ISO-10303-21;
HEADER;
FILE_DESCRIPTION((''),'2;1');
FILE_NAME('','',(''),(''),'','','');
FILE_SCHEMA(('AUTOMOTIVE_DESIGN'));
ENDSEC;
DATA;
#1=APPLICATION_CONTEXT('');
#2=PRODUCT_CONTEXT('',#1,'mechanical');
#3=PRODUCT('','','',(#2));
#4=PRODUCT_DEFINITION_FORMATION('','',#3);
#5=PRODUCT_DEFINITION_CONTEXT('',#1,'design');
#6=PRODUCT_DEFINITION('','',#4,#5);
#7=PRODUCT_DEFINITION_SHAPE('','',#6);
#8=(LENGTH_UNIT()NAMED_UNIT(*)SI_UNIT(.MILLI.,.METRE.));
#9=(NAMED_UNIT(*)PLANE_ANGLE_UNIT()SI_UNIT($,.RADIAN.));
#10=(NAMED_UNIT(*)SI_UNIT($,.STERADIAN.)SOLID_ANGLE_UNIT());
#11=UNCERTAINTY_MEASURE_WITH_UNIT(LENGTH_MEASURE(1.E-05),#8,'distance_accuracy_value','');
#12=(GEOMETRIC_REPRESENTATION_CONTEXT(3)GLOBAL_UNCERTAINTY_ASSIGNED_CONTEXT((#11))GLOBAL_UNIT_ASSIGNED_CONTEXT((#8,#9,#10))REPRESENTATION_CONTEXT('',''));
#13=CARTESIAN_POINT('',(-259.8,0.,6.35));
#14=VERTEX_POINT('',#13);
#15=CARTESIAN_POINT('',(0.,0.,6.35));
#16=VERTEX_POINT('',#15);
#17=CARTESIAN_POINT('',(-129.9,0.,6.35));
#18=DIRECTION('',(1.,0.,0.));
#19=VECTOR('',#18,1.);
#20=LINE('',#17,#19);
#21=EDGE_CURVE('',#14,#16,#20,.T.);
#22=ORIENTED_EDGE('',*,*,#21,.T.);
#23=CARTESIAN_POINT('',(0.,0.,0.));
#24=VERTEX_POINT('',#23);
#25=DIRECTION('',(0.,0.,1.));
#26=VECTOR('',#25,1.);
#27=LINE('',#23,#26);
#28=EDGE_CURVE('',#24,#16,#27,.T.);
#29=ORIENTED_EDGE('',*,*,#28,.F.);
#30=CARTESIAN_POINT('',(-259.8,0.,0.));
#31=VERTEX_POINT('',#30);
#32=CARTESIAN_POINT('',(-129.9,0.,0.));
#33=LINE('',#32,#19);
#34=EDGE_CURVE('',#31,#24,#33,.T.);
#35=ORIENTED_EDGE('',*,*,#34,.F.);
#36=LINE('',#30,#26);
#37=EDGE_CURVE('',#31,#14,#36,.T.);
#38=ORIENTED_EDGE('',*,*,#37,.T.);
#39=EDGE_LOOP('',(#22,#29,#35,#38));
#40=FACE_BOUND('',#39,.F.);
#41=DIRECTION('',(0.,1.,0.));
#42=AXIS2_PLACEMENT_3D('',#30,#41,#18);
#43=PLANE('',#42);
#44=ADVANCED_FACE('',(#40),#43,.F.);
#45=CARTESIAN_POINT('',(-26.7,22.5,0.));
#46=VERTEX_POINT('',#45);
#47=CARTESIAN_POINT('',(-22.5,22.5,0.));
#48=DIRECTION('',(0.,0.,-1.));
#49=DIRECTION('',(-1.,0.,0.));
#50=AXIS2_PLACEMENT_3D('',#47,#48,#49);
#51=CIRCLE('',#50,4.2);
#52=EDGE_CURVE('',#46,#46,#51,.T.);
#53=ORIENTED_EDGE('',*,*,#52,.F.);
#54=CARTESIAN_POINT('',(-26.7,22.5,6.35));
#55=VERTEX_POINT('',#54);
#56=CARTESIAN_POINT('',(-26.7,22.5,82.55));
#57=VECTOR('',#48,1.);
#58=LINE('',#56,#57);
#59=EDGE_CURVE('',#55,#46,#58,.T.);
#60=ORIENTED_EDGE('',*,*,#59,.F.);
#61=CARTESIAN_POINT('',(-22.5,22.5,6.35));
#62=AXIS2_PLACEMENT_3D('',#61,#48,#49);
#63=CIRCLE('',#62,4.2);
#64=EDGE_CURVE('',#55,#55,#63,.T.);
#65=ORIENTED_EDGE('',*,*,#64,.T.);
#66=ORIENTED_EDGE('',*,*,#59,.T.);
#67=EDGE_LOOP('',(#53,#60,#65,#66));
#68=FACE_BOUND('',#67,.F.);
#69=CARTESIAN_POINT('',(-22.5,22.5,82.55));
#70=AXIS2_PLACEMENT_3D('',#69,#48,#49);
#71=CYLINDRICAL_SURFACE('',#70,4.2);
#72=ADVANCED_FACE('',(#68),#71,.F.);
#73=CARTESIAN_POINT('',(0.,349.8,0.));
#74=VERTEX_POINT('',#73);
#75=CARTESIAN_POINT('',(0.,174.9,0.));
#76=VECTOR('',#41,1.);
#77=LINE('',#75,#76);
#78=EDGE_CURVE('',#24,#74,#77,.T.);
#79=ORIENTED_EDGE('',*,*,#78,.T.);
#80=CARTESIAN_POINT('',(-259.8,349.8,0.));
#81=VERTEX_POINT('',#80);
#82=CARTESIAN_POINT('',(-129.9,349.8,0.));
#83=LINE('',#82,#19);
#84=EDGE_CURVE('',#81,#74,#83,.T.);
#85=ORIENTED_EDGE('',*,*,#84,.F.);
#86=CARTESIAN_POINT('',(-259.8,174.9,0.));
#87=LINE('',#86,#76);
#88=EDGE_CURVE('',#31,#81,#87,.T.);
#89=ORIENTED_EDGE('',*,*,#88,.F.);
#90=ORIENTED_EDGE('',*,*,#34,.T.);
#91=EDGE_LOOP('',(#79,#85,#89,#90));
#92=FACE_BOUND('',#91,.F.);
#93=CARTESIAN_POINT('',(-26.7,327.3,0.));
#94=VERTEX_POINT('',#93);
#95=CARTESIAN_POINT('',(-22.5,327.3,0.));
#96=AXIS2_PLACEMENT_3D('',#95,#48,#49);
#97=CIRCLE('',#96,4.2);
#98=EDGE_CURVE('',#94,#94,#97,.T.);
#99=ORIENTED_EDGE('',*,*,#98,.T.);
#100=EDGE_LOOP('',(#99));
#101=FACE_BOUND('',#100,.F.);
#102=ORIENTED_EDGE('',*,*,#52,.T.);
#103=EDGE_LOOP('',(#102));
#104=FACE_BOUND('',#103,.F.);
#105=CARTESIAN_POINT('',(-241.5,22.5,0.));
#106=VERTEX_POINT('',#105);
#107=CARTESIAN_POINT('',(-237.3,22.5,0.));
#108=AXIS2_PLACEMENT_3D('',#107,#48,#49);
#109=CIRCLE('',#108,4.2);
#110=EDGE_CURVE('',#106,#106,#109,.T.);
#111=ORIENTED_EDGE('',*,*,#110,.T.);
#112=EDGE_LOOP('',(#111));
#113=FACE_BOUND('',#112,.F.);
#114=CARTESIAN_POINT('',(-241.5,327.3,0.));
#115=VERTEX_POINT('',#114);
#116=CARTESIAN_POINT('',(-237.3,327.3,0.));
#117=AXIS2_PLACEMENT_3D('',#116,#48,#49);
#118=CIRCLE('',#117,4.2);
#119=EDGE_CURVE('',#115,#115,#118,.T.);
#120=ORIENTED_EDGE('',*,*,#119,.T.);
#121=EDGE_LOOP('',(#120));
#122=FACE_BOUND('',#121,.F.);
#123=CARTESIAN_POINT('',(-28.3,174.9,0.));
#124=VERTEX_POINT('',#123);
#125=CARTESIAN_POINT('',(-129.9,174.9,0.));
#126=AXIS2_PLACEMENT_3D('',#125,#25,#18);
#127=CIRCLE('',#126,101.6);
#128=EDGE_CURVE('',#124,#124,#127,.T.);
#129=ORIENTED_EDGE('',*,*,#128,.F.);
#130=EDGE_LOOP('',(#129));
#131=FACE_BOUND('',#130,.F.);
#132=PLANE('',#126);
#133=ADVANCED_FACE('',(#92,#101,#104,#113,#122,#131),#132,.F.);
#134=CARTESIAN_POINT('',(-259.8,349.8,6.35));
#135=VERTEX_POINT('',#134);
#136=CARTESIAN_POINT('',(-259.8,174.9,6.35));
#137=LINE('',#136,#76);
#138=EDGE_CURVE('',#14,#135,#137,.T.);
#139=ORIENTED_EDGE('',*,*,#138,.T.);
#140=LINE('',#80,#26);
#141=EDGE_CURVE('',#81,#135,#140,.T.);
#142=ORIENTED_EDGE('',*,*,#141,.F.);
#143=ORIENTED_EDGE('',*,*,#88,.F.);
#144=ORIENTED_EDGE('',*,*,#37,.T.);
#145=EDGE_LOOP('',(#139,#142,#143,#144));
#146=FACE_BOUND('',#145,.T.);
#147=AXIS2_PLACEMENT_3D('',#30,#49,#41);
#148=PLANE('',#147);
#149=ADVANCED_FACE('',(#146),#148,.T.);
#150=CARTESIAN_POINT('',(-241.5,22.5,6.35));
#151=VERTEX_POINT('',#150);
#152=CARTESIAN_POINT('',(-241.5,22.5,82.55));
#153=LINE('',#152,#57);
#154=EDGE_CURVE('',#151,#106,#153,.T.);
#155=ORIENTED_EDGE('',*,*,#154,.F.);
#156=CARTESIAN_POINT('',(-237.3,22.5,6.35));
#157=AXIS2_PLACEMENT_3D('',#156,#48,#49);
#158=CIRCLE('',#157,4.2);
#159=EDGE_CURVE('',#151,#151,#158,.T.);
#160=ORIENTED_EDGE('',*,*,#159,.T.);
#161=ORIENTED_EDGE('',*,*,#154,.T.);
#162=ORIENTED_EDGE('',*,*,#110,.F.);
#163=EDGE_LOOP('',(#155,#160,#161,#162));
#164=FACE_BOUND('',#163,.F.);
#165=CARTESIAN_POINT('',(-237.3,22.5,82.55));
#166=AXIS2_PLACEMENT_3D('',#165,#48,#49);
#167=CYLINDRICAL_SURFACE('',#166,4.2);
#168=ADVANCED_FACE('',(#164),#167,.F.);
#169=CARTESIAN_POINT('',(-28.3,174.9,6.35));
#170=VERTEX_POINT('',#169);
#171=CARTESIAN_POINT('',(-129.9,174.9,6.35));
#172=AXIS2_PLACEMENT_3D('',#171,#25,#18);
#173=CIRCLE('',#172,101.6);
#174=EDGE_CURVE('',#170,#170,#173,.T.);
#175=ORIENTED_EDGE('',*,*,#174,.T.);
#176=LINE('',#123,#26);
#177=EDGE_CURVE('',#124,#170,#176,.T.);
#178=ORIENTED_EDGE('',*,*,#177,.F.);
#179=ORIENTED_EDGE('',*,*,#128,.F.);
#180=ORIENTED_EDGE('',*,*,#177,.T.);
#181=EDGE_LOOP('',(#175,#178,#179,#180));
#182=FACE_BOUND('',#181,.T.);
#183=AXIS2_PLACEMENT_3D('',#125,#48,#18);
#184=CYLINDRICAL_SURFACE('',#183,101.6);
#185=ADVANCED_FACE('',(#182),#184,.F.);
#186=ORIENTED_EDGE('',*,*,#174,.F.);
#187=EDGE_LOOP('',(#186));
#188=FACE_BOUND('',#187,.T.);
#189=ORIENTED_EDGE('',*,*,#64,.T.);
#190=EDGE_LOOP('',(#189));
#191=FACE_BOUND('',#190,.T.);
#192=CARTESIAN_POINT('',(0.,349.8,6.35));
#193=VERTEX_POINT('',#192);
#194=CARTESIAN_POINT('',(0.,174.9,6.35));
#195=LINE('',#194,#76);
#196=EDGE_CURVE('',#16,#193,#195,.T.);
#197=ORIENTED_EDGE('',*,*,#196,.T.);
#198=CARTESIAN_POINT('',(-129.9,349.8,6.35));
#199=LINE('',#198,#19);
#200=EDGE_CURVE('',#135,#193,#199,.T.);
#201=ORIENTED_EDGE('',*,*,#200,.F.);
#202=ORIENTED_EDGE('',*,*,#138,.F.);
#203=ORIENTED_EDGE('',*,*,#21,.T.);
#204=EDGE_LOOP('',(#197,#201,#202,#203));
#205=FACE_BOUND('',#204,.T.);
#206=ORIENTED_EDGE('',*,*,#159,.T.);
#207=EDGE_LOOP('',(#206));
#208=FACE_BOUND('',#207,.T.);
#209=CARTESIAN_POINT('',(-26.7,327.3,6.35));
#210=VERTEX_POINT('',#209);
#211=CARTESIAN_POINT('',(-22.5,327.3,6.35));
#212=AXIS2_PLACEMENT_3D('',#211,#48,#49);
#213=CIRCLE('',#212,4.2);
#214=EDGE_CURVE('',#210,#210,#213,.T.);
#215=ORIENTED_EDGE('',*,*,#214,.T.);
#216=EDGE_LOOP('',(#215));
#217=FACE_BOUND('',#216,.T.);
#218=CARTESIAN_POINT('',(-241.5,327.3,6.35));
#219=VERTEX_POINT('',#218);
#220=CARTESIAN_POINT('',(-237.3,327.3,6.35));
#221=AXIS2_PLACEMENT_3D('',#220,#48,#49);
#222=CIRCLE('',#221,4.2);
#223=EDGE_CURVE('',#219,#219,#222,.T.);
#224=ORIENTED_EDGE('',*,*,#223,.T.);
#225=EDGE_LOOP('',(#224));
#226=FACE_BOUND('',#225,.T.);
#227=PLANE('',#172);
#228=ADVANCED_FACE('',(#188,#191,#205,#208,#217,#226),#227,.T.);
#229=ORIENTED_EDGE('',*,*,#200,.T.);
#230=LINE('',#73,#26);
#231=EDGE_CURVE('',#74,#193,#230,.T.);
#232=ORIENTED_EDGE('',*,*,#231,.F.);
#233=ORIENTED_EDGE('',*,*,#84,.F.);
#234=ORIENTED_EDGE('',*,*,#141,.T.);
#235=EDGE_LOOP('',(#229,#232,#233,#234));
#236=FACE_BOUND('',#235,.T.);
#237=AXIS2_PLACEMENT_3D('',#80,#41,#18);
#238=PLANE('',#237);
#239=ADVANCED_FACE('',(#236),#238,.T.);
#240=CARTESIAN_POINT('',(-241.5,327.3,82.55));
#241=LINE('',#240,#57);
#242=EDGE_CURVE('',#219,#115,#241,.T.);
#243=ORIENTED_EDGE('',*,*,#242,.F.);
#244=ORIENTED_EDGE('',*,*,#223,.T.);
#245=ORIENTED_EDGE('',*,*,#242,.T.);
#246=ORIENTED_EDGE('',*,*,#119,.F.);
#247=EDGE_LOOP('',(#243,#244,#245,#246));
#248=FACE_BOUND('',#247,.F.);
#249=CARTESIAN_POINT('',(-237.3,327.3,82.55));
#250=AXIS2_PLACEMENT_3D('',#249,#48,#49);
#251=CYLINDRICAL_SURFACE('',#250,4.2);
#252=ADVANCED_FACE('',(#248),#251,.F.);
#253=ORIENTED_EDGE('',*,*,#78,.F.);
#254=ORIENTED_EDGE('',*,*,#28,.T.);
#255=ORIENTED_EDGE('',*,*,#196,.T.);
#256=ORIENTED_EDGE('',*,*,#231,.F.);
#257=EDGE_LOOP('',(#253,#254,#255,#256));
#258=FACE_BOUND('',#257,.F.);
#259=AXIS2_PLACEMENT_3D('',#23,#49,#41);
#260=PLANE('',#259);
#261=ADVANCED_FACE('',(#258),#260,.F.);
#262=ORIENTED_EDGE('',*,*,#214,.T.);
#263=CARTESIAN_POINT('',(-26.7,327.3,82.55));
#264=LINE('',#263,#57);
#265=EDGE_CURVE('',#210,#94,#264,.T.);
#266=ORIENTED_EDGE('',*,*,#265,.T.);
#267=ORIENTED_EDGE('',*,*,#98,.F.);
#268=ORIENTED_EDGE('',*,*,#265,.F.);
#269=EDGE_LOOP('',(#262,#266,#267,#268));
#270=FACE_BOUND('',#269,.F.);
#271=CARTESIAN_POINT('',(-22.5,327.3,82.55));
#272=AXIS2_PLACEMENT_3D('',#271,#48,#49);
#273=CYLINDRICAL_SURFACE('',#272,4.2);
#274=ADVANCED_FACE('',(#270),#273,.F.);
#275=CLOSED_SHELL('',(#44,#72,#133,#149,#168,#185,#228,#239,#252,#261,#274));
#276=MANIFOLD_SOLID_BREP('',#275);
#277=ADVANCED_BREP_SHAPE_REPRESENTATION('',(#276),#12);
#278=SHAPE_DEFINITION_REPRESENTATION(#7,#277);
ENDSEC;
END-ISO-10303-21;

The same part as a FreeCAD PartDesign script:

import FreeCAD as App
import Part
import Sketcher

V = App.Vector
Q = App.Units.Quantity


def add_polygon(sketch, points):
    """Adds a closed chain of lines whose ends are joined by coincident constraints."""
    first, n = sketch.GeometryCount, len(points)
    for a, b in zip(points, points[1:] + points[:1]):
        sketch.addGeometry(Part.LineSegment(App.Vector(*a, 0), App.Vector(*b, 0)), False)
    for i in range(n):
        sketch.addConstraint(Sketcher.Constraint("Coincident", first + i, 2, first + (i + 1) % n, 1))

doc = App.newDocument("Part")
body = doc.addObject("PartDesign::Body", "Body")

# Sketch on XY plane
sketch1 = body.newObject("Sketcher::SketchObject", "Sketch")
sketch1.AttachmentSupport = (doc.getObject("XY_Plane"), [""])
sketch1.MapMode = "FlatFace"
add_polygon(sketch1, [(-260, 350), (-260, 0), (0, 0), (0, 350)])  # lines 0-3
sketch1.addGeometry(Part.Circle(V(-130, 175, 0), V(0, 0, 1), 102), False)  # 4
sketch1.addConstraint([
    Sketcher.Constraint("Vertical", 0),
    Sketcher.Constraint("Horizontal", 1),
    Sketcher.Constraint("Vertical", 2),
    Sketcher.Constraint("Horizontal", 3),
    Sketcher.Constraint("Coincident", 1, 2, -1, 1),
    Sketcher.Constraint("Diameter", 4, Q("203.2 mm")),
    Sketcher.Constraint("DistanceX", 1, 1, 1, 2, Q("259.8 mm")),
    Sketcher.Constraint("DistanceY", 0, 2, 0, 1, Q("349.8 mm")),
    Sketcher.Constraint("DistanceX", 4, 3, -1, 1, Q("129.9 mm")),
    Sketcher.Constraint("DistanceY", -1, 1, 4, 3, Q("174.9 mm")),
])
pad1 = body.newObject("PartDesign::Pad", "Pad")
pad1.Profile = sketch1
pad1.Length = 6.35

# Sketch on XY plane
sketch2 = body.newObject("Sketcher::SketchObject", "Sketch001")
sketch2.AttachmentSupport = (doc.getObject("XY_Plane"), [""])
sketch2.MapMode = "FlatFace"
sketch2.AttachmentOffset = App.Placement(V(0, 0, 6.35), App.Rotation())
sketch2.addGeometry([
    Part.Circle(V(-237.3, 327.3, 0), V(0, 0, 1), 4.2),
    Part.Circle(V(-22.5, 327.3, 0), V(0, 0, 1), 4.2),
    Part.Circle(V(-22.5, 22.5, 0), V(0, 0, 1), 4.2),
    Part.Circle(V(-237.3, 22.5, 0), V(0, 0, 1), 4.2),
], False)
sketch2.addConstraint([
    Sketcher.Constraint("Equal", 0, 1),
    Sketcher.Constraint("Equal", 1, 2),
    Sketcher.Constraint("Equal", 2, 3),
    Sketcher.Constraint("Horizontal", 0, 3, 1, 3),
    Sketcher.Constraint("Horizontal", 2, 3, 3, 3),
    Sketcher.Constraint("Vertical", 1, 3, 2, 3),
    Sketcher.Constraint("Vertical", 0, 3, 3, 3),
    Sketcher.Constraint("Diameter", 0, Q("8.4 mm")),
    Sketcher.Constraint("DistanceX", 0, 3, -1, 1, Q("237.3 mm")),
    Sketcher.Constraint("DistanceY", -1, 1, 0, 3, Q("327.3 mm")),
    Sketcher.Constraint("DistanceX", 1, 3, -1, 1, Q("22.5 mm")),
    Sketcher.Constraint("DistanceY", -1, 1, 2, 3, Q("22.5 mm")),
])
doc.recompute()
hole = body.newObject("PartDesign::Hole", "Hole")
hole.Profile = sketch2
hole.ThreadType = "None"
hole.Diameter = 8.4
hole.DepthType = "Dimension"
hole.Depth = 76.2
hole.DrillPoint = "Angled"
hole.DrillPointAngle = 118

doc.recompute()
